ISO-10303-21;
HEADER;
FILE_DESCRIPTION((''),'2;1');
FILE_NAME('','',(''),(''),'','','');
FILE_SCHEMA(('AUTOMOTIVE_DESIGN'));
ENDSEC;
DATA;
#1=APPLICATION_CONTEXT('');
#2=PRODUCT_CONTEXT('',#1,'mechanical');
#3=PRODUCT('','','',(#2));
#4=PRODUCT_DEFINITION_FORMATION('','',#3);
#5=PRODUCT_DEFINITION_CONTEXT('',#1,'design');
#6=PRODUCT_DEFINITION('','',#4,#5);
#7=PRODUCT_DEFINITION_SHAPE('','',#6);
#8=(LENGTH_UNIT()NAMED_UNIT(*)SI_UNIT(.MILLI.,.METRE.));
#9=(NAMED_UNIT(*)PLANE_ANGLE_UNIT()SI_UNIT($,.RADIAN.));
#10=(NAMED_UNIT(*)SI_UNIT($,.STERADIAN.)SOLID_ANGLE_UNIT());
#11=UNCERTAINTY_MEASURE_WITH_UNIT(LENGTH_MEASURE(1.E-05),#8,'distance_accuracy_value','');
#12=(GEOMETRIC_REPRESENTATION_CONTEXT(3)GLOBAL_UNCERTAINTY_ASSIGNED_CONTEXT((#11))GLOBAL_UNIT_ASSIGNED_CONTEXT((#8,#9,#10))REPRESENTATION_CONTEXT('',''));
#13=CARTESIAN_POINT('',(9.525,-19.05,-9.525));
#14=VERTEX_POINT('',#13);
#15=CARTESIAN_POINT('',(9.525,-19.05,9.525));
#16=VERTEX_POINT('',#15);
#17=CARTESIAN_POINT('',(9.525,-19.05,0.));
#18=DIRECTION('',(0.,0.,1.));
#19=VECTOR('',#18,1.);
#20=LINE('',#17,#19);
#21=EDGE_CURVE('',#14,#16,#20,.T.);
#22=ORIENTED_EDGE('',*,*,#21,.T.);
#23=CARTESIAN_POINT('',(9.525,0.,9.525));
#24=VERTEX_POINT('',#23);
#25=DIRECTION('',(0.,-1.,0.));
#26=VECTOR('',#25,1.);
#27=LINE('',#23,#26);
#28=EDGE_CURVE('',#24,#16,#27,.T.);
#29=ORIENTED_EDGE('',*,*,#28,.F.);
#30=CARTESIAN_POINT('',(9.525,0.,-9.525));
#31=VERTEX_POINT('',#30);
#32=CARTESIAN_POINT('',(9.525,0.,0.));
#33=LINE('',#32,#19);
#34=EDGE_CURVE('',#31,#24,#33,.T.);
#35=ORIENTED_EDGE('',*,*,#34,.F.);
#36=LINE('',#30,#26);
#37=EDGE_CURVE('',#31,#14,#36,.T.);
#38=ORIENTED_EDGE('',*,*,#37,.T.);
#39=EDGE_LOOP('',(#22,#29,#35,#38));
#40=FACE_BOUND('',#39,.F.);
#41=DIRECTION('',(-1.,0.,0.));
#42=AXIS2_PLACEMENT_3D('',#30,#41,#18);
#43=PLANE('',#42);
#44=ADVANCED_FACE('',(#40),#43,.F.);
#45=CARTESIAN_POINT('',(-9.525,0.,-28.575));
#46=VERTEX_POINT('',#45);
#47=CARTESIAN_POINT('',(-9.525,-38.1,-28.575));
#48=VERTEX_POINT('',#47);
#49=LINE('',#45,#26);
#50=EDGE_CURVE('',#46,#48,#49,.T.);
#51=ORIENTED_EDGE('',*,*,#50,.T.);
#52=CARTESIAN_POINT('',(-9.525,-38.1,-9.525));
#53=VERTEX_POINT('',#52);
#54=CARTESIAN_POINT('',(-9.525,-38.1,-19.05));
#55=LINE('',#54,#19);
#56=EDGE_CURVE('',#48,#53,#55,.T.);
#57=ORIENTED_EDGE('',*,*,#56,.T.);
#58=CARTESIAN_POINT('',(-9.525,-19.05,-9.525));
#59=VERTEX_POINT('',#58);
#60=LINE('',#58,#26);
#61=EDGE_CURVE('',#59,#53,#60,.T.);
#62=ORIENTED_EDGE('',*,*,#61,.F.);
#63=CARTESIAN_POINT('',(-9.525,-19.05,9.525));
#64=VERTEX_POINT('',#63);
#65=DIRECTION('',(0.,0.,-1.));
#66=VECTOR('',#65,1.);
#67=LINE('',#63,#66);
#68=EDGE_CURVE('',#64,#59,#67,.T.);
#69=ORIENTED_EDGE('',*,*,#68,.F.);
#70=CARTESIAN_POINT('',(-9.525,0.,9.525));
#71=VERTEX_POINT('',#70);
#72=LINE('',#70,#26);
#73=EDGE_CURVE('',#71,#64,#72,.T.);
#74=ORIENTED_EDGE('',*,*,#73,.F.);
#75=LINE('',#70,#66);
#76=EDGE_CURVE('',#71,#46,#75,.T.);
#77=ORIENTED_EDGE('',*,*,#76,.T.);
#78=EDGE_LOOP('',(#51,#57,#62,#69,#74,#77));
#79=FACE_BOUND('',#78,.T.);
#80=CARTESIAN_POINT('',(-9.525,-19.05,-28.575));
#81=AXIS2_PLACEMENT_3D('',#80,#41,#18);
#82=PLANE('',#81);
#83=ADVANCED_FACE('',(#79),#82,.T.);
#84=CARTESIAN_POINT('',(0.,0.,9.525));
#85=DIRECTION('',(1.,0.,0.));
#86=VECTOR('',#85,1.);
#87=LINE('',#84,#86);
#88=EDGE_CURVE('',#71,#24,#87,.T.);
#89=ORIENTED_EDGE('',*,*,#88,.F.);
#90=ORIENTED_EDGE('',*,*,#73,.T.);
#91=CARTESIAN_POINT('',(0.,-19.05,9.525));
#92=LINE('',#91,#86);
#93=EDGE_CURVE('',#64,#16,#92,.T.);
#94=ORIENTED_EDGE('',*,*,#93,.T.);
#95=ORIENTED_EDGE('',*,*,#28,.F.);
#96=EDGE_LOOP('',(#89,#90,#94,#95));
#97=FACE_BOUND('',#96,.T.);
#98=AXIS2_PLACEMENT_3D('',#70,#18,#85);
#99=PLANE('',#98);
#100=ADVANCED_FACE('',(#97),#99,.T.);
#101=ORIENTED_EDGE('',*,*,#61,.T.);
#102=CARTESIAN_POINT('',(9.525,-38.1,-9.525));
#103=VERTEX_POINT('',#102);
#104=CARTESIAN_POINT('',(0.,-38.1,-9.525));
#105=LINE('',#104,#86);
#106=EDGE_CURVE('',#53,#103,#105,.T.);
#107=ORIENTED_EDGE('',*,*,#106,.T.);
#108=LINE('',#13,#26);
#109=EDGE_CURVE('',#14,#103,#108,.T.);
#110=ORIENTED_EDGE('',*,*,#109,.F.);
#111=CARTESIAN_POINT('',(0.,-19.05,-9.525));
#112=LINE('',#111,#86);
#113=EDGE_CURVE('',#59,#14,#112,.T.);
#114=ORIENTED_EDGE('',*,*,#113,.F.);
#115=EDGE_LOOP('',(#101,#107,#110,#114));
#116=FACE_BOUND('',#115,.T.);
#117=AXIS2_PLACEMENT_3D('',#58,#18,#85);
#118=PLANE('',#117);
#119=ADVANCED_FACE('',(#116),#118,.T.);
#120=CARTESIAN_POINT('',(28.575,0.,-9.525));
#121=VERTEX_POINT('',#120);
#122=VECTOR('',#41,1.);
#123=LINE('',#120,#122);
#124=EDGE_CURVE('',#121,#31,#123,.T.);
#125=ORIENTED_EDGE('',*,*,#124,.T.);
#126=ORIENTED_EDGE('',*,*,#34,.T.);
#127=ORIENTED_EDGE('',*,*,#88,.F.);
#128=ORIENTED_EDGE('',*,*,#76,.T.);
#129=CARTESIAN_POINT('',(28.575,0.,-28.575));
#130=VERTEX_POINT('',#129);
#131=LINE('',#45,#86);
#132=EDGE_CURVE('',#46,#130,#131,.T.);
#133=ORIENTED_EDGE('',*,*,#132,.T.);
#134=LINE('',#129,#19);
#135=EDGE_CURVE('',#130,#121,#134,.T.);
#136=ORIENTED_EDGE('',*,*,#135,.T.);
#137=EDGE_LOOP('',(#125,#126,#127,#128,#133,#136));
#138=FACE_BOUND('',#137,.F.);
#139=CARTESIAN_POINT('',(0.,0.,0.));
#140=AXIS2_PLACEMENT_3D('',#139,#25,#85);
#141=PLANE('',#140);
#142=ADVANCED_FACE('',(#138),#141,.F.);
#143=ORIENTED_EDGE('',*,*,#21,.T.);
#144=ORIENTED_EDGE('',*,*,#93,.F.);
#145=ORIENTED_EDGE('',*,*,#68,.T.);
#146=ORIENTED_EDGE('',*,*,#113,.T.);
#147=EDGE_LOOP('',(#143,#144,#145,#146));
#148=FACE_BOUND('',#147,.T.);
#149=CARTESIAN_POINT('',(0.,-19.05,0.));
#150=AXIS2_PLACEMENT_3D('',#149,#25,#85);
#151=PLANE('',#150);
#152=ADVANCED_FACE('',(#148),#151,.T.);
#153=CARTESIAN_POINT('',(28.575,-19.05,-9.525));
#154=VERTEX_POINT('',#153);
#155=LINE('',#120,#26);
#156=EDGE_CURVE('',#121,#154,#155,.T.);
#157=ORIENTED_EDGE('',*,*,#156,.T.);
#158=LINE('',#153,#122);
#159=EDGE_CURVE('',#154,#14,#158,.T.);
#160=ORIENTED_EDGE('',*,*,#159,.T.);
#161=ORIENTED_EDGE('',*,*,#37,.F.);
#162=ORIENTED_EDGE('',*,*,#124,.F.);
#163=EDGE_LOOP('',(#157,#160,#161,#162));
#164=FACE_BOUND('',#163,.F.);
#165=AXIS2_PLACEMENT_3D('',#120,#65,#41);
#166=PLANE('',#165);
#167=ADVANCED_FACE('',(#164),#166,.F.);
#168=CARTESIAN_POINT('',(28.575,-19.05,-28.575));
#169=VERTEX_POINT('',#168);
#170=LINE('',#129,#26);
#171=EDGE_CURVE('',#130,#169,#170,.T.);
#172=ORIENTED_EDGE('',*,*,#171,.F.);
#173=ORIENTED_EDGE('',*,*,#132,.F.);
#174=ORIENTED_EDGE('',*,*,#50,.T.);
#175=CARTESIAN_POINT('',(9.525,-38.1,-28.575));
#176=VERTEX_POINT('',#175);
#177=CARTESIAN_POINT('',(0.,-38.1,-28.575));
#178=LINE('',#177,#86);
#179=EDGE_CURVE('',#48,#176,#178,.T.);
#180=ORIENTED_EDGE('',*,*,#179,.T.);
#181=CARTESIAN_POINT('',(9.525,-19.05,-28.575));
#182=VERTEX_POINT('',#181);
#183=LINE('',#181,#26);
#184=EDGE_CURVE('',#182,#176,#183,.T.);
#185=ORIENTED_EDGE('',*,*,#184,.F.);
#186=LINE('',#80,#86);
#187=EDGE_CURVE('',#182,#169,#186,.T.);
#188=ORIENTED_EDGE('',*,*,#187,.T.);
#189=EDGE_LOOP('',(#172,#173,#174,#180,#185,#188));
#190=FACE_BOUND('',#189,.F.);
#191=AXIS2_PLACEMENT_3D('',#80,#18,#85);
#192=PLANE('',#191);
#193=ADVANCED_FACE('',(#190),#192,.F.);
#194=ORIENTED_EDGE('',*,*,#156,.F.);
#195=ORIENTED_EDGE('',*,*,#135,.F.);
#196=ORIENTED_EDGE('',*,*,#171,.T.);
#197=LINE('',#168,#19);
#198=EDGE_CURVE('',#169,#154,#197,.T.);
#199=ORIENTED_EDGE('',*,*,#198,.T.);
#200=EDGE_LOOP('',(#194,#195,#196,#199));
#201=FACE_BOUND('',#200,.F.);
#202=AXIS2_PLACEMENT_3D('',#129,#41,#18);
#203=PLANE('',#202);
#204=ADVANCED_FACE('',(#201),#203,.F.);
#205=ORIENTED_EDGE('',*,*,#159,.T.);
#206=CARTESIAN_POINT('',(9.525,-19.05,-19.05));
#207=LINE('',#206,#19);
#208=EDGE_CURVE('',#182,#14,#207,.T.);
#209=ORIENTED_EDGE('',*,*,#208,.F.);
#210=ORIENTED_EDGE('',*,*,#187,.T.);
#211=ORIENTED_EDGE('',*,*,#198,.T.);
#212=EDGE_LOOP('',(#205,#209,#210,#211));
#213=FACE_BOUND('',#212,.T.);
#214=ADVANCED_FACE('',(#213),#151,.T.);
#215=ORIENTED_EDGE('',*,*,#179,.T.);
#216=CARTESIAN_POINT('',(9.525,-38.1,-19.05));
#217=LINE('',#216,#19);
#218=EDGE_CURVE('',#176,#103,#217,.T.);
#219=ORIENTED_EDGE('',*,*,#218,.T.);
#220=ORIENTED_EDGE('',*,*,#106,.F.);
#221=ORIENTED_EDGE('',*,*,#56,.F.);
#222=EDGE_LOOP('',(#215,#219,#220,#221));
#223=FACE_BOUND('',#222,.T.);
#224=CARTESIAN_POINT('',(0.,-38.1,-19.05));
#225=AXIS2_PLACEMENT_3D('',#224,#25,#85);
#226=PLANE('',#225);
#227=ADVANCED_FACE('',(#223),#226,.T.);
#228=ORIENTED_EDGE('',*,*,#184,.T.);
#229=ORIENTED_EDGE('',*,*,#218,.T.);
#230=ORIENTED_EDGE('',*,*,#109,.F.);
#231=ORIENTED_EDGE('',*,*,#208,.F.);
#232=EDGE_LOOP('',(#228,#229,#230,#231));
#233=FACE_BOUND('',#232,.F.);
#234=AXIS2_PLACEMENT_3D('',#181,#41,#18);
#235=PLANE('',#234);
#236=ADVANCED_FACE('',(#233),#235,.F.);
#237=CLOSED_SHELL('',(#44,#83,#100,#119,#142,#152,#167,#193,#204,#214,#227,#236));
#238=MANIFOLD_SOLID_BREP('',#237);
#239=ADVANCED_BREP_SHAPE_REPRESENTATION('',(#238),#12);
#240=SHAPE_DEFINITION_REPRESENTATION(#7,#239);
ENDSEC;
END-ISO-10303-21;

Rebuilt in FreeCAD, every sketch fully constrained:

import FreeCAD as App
import Part
import Sketcher
Q = App.Units.Quantity

doc = App.newDocument("Part")
params = doc.addObject("Spreadsheet::Sheet", "Params")
for row, (alias, value) in enumerate([
    ("sketch1_width", "1.5 in"),
    ("pad1_length", "0.75 in"),
    ("sketch2_width", "0.75 in"),
    ("pad2_length", "0.75 in"),
], start=1):
    params.set(f"A{row}", alias)
    params.set(f"B{row}", "=" + value)
    params.setAlias(f"B{row}", alias)

body = doc.addObject("PartDesign::Body", "Body")

sketch1 = doc.addObject("Sketcher::SketchObject", "Sketch")
body.addObject(sketch1)
sketch1.AttachmentSupport = (doc.XZ_Plane, [""])
sketch1.MapMode = "FlatFace"
sketch1.addGeometry(Part.LineSegment(App.Vector(-9.525, 9.525, 0), App.Vector(-9.525, -28.575, 0)), False)
sketch1.addGeometry(Part.LineSegment(App.Vector(-9.525, -28.575, 0), App.Vector(28.575, -28.575, 0)), False)
sketch1.addGeometry(Part.LineSegment(App.Vector(28.575, -28.575, 0), App.Vector(28.575, -9.525, 0)), False)
sketch1.addGeometry(Part.LineSegment(App.Vector(28.575, -9.525, 0), App.Vector(9.525, -9.525, 0)), False)
sketch1.addGeometry(Part.LineSegment(App.Vector(9.525, -9.525, 0), App.Vector(9.525, 9.525, 0)), False)
sketch1.addGeometry(Part.LineSegment(App.Vector(9.525, 9.525, 0), App.Vector(-9.525, 9.525, 0)), False)
sketch1.addConstraint(Sketcher.Constraint("Coincident", 0, 2, 1, 1))
sketch1.addConstraint(Sketcher.Constraint("Coincident", 1, 2, 2, 1))
sketch1.addConstraint(Sketcher.Constraint("Coincident", 2, 2, 3, 1))
sketch1.addConstraint(Sketcher.Constraint("Coincident", 3, 2, 4, 1))
sketch1.addConstraint(Sketcher.Constraint("Coincident", 4, 2, 5, 1))
sketch1.addConstraint(Sketcher.Constraint("Coincident", 5, 2, 0, 1))
sketch1.addConstraint(Sketcher.Constraint("Vertical", 0))
sketch1.addConstraint(Sketcher.Constraint("Horizontal", 1))
sketch1.addConstraint(Sketcher.Constraint("Vertical", 2))
sketch1.addConstraint(Sketcher.Constraint("Horizontal", 3))
sketch1.addConstraint(Sketcher.Constraint("Vertical", 4))
sketch1.addConstraint(Sketcher.Constraint("Horizontal", 5))
sketch1.addConstraint(Sketcher.Constraint("Symmetric", 3, 2, 5, 2, -1, 1))
sketch1.addConstraint(Sketcher.Constraint("Equal", 3, 5))
sketch1.addConstraint(Sketcher.Constraint("Equal", 1, 0))
sketch1.addConstraint(Sketcher.Constraint("Equal", 5, 2))
sketch1.addConstraint(Sketcher.Constraint("DistanceX", 1, 1, 1, 2, Q("1.5 in")))
sketch1.setExpression("Constraints[16]", "Params.sketch1_width")
pad1 = doc.addObject("PartDesign::Pad", "Pad")
body.addObject(pad1)
pad1.Profile = sketch1
pad1.setExpression("Length", "Params.pad1_length")

sketch2 = doc.addObject("Sketcher::SketchObject", "Sketch001")
body.addObject(sketch2)
sketch2.AttachmentSupport = (doc.XZ_Plane, [""])
sketch2.MapMode = "FlatFace"
sketch2.AttachmentOffset = App.Placement(App.Vector(0, 0, 0.75 * 25.4), App.Rotation())
sketch2.addGeometry(Part.LineSegment(App.Vector(-9.525, -9.525, 0), App.Vector(-9.525, -28.575, 0)), False)
sketch2.addGeometry(Part.LineSegment(App.Vector(-9.525, -28.575, 0), App.Vector(9.525, -28.575, 0)), False)
sketch2.addGeometry(Part.LineSegment(App.Vector(9.525, -28.575, 0), App.Vector(9.525, -9.525, 0)), False)
sketch2.addGeometry(Part.LineSegment(App.Vector(9.525, -9.525, 0), App.Vector(-9.525, -9.525, 0)), False)
sketch2.addConstraint(Sketcher.Constraint("Coincident", 0, 2, 1, 1))
sketch2.addConstraint(Sketcher.Constraint("Coincident", 1, 2, 2, 1))
sketch2.addConstraint(Sketcher.Constraint("Coincident", 2, 2, 3, 1))
sketch2.addConstraint(Sketcher.Constraint("Coincident", 3, 2, 0, 1))
sketch2.addConstraint(Sketcher.Constraint("Vertical", 0))
sketch2.addConstraint(Sketcher.Constraint("Horizontal", 1))
sketch2.addConstraint(Sketcher.Constraint("Vertical", 2))
sketch2.addConstraint(Sketcher.Constraint("Horizontal", 3))
sketch2.addConstraint(Sketcher.Constraint("Equal", 3, 0))
sketch2.addConstraint(Sketcher.Constraint("DistanceX", 1, 1, 1, 2, Q("0.75 in")))
sketch2.addConstraint(Sketcher.Constraint("DistanceX", 0, 2, -1, 1, Q("0.375 in")))
sketch2.addConstraint(Sketcher.Constraint("DistanceY", 0, 2, -1, 1, Q("1.125 in")))
sketch2.setExpression("Constraints[9]", "Params.sketch2_width")
pad2 = doc.addObject("PartDesign::Pad", "Pad001")
body.addObject(pad2)
pad2.Profile = sketch2
pad2.setExpression("Length", "Params.pad2_length")

doc.recompute()
